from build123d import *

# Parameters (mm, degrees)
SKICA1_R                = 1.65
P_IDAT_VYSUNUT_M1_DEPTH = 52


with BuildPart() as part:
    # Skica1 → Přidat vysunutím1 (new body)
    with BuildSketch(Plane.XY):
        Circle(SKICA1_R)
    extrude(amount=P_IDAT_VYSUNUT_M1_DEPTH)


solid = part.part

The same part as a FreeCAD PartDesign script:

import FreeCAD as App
import Part
import Sketcher
from FreeCAD import Vector

doc = App.newDocument("Part")
body = doc.addObject("PartDesign::Body", "Body")

# Sketch on XY plane
sketch1 = body.newObject("Sketcher::SketchObject", "Sketch")
sketch1.AttachmentSupport = (doc.getObject("XY_Plane"), [""])
sketch1.MapMode = "FlatFace"
sketch1.addGeometry(Part.Circle(Vector(0, 0, 0), Vector(0, 0, 1), 1.65), False)
sketch1.addConstraint([
    Sketcher.Constraint("Coincident", 0, 3, -1, 1),
    Sketcher.Constraint("Diameter", 0, 3.3),
])
pad1 = body.newObject("PartDesign::Pad", "Pad")
pad1.Profile = sketch1
pad1.Length = 52

doc.recompute()
